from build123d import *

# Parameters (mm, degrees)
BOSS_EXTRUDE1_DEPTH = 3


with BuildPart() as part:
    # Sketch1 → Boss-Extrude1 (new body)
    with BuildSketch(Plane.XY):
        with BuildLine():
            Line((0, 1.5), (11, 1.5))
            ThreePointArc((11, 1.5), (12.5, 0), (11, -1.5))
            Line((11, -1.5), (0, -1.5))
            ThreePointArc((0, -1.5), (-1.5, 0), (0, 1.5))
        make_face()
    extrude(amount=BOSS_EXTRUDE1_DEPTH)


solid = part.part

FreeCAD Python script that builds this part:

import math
import FreeCAD as App
import Part
import Sketcher
from FreeCAD import Vector
Q = App.Units.Quantity

doc = App.newDocument("Part")
body = doc.addObject("PartDesign::Body", "Body")

sketch1 = body.newObject("Sketcher::SketchObject", "Sketch")
sketch1.AttachmentSupport = (doc.getObject("XY_Plane"), [""])
sketch1.MapMode = "FlatFace"
sketch1.addGeometry(Part.LineSegment(Vector(11, 1.5, 0), Vector(0, 1.5, 0)), False)
sketch1.addGeometry(Part.ArcOfCircle(Part.Circle(Vector(0, 0, 0), Vector(0, 0, 1), 1.5), math.radians(90), math.radians(270)), False)
sketch1.addGeometry(Part.LineSegment(Vector(0, -1.5, 0), Vector(11, -1.5, 0)), False)
sketch1.addGeometry(Part.ArcOfCircle(Part.Circle(Vector(11, 0, 0), Vector(0, 0, 1), 1.5), math.radians(-90), math.radians(90)), False)
sketch1.addConstraint(Sketcher.Constraint("Tangent", 0, 2, 1, 1))
sketch1.addConstraint(Sketcher.Constraint("Tangent", 1, 2, 2, 1))
sketch1.addConstraint(Sketcher.Constraint("Tangent", 2, 2, 3, 1))
sketch1.addConstraint(Sketcher.Constraint("Tangent", 3, 2, 0, 1))
sketch1.addConstraint(Sketcher.Constraint("Horizontal", 0))
sketch1.addConstraint(Sketcher.Constraint("Horizontal", 2))
sketch1.addConstraint(Sketcher.Constraint("Coincident", 1, 3, -1, 1))
sketch1.addConstraint(Sketcher.Constraint("Radius", 1, Q("1.5 mm")))
sketch1.addConstraint(Sketcher.Constraint("DistanceX", 0, 2, 0, 1, Q("11 mm")))
pad1 = body.newObject("PartDesign::Pad", "Pad")
pad1.Profile = sketch1
pad1.Length = 3

doc.recompute()
